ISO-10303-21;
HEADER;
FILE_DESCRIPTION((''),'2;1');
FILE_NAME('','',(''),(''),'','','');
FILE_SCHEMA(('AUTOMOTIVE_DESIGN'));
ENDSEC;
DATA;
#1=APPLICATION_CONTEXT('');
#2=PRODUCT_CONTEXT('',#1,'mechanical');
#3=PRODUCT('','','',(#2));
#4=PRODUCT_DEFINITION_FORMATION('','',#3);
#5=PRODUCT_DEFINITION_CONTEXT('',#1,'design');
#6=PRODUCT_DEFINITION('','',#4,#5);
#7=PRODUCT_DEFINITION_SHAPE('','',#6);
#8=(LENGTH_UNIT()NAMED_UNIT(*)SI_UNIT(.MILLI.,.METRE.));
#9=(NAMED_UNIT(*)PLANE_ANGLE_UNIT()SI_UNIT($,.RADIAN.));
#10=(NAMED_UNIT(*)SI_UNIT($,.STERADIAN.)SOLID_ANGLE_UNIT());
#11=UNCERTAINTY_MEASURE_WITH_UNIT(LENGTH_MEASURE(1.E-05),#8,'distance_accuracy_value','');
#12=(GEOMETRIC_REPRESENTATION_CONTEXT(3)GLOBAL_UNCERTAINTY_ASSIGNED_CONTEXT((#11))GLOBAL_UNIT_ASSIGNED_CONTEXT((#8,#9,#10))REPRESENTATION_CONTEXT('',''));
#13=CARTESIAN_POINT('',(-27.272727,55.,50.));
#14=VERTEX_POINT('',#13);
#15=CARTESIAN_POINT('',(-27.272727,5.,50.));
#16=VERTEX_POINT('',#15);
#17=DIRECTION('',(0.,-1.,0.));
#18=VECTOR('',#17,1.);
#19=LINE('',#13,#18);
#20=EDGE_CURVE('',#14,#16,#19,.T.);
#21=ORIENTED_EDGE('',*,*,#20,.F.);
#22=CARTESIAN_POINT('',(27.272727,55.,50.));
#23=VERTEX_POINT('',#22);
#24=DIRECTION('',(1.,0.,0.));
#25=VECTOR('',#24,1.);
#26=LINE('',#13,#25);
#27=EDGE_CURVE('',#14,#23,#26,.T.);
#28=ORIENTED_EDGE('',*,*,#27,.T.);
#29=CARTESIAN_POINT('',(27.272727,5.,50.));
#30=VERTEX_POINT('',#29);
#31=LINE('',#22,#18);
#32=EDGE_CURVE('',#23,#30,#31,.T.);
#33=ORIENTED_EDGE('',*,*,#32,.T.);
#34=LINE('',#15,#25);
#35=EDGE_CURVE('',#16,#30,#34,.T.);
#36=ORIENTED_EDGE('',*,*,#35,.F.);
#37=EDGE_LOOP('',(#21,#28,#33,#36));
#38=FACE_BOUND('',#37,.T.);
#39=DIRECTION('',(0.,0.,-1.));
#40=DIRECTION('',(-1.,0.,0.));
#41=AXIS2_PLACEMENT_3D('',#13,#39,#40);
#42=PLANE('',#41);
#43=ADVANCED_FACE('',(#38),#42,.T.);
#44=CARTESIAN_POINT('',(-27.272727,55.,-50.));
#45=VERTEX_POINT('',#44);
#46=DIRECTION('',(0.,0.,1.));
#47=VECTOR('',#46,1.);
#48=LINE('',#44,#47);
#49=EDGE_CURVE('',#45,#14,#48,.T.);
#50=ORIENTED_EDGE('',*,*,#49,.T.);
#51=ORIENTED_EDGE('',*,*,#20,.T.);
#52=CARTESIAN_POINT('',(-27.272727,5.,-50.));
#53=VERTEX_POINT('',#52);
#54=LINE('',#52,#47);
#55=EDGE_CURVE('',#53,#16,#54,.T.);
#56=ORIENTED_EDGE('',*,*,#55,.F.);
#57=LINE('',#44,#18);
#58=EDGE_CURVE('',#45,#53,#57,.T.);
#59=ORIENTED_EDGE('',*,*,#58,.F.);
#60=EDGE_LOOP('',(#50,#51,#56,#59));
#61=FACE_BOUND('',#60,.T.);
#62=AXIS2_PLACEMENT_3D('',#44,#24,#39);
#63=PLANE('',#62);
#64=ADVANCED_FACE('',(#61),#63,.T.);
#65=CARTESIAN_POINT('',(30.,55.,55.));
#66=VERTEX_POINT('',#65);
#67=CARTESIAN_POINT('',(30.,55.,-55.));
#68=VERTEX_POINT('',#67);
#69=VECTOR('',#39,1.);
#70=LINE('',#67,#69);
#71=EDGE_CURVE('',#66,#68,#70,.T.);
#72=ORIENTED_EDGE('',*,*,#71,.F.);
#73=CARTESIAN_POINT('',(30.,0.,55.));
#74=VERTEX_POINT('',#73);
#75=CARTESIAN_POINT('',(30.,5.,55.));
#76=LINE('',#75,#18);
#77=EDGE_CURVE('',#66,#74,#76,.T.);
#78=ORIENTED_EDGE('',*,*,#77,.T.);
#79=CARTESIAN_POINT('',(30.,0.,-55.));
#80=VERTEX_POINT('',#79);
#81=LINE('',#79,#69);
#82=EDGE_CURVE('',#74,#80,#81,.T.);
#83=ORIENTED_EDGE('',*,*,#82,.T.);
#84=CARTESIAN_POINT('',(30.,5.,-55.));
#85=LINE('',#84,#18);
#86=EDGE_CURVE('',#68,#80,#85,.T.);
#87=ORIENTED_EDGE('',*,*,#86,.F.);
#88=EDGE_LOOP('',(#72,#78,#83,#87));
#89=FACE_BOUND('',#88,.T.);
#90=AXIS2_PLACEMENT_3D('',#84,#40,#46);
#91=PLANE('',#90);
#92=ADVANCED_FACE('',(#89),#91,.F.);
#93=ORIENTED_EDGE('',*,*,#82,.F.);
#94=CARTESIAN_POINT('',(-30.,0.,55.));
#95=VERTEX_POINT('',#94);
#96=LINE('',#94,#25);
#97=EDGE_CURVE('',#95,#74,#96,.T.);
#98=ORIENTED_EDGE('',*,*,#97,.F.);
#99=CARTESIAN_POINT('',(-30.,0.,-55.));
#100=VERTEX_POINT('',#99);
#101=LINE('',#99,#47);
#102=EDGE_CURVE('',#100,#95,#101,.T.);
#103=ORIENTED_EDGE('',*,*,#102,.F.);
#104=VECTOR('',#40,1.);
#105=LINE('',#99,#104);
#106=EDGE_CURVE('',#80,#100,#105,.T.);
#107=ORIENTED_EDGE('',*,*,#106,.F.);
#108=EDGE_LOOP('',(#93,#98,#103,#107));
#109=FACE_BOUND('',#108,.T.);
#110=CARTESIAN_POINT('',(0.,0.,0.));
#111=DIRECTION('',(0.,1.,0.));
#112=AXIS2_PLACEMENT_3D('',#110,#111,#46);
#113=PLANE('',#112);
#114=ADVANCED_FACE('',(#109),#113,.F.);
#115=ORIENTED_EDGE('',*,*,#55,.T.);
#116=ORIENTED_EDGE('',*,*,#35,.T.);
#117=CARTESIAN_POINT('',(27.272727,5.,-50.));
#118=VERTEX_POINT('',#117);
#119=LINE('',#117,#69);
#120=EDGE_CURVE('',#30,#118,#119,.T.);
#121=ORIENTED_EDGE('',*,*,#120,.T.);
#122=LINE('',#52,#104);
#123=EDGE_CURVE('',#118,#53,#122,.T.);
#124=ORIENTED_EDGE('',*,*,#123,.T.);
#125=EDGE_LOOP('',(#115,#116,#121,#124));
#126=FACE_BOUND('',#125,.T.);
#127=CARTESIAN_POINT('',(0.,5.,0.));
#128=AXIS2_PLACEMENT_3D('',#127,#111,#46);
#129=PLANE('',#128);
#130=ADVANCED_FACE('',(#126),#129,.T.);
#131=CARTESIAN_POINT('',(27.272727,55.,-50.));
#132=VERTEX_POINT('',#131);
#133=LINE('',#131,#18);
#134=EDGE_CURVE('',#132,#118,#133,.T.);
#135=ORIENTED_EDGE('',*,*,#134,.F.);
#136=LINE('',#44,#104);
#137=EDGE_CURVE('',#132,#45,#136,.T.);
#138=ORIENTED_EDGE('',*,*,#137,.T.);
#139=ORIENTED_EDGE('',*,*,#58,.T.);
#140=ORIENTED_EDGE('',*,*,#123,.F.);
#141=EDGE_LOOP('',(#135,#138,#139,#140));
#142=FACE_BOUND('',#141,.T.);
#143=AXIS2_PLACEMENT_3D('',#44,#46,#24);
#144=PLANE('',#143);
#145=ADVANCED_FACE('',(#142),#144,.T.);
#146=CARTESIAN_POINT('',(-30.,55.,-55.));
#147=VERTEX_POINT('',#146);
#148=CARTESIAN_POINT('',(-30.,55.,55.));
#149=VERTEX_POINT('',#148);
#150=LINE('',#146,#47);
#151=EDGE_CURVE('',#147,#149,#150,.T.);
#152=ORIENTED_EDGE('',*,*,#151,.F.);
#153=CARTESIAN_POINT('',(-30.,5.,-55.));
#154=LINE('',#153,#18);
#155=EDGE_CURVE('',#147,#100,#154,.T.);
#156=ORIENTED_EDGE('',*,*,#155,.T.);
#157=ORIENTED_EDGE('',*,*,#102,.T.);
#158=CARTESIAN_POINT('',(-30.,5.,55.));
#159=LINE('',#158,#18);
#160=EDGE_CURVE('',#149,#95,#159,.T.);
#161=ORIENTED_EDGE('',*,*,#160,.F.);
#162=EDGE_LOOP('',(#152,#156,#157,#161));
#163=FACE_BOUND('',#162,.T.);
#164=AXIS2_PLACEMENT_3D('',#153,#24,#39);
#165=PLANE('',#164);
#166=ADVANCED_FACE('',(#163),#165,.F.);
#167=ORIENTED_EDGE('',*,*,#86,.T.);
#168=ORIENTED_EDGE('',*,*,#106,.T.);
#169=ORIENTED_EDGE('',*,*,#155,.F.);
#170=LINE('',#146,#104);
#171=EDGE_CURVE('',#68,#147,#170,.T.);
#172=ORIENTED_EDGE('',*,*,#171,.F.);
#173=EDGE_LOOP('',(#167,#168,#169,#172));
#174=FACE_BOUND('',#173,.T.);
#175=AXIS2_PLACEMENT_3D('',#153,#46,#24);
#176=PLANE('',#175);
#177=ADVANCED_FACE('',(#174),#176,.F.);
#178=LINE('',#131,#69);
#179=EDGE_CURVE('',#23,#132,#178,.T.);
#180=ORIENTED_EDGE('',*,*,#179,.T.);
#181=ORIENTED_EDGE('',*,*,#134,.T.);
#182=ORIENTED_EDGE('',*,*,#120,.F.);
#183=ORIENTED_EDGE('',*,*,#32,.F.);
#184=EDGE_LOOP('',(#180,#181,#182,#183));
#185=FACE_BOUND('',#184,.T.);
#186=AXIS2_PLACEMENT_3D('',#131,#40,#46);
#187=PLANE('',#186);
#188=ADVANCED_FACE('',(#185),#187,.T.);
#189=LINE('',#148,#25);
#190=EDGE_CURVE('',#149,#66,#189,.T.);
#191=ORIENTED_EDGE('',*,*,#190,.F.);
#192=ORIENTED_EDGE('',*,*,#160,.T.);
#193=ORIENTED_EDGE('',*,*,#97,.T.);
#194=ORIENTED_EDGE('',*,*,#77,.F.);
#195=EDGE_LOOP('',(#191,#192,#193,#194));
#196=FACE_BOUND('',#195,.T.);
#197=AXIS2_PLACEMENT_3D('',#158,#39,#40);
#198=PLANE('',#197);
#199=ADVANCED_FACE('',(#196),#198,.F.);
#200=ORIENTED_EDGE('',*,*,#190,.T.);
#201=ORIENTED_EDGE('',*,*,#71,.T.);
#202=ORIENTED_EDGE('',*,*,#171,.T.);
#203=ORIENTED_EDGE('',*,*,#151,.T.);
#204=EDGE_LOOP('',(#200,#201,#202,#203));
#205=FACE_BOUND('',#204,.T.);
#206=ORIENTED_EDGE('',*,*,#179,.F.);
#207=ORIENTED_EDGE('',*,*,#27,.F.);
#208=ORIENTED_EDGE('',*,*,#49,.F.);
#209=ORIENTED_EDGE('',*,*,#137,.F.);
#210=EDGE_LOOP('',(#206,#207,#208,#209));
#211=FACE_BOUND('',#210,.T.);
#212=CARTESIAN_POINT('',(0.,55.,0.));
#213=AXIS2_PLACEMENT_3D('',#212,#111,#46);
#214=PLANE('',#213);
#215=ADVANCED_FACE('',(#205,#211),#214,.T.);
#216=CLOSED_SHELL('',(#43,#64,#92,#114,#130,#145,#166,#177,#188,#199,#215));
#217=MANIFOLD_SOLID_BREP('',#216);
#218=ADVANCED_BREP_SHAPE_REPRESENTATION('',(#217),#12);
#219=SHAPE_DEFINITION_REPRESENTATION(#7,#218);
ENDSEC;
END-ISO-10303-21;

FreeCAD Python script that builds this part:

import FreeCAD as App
import Part
import Sketcher
from FreeCAD import Vector
Q = App.Units.Quantity


def add_polygon(sketch, points):
    """Adds a closed chain of lines whose ends are joined by coincident constraints."""
    first, n = sketch.GeometryCount, len(points)
    for a, b in zip(points, points[1:] + points[:1]):
        sketch.addGeometry(Part.LineSegment(App.Vector(*a, 0), App.Vector(*b, 0)), False)
    for i in range(n):
        sketch.addConstraint(Sketcher.Constraint("Coincident", first + i, 2, first + (i + 1) % n, 1))

doc = App.newDocument("Part")
body = doc.addObject("PartDesign::Body", "Body")

sketch1 = doc.addObject("Sketcher::SketchObject", "Sketch")
body.addObject(sketch1)
sketch1.AttachmentSupport = (doc.XZ_Plane, [""])
sketch1.MapMode = "FlatFace"
add_polygon(sketch1, [(-30, -55), (-30, 55), (30, 55), (30, -55)])
sketch1.addConstraint(Sketcher.Constraint("Vertical", 0))
sketch1.addConstraint(Sketcher.Constraint("Horizontal", 1))
sketch1.addConstraint(Sketcher.Constraint("Vertical", 2))
sketch1.addConstraint(Sketcher.Constraint("Horizontal", 3))
sketch1.addConstraint(Sketcher.Constraint("Symmetric", 0, 2, 2, 2, -1, 1))
sketch1.addConstraint(Sketcher.Constraint("DistanceX", 1, 1, 1, 2, Q("60 mm")))
sketch1.addConstraint(Sketcher.Constraint("DistanceY", 0, 1, 0, 2, Q("110 mm")))
pad1 = doc.addObject("PartDesign::Pad", "Pad")
body.addObject(pad1)
pad1.Profile = sketch1
pad1.Length = 5
pad1.Reversed = True

sketch2 = doc.addObject("Sketcher::SketchObject", "Sketch001")
body.addObject(sketch2)
sketch2.AttachmentSupport = (doc.XZ_Plane, [""])
sketch2.MapMode = "FlatFace"
sketch2.AttachmentOffset = App.Placement(Vector(0, 0, -5), App.Rotation())
add_polygon(sketch2, [(-30, -55), (-30, 55), (30, 55), (30, -55)])
add_polygon(sketch2, [(27, 50), (-27, 50), (-27, -50), (27, -50)])
sketch2.addConstraint(Sketcher.Constraint("Vertical", 0))
sketch2.addConstraint(Sketcher.Constraint("Horizontal", 1))
sketch2.addConstraint(Sketcher.Constraint("Vertical", 2))
sketch2.addConstraint(Sketcher.Constraint("Horizontal", 3))
sketch2.addConstraint(Sketcher.Constraint("Horizontal", 4))
sketch2.addConstraint(Sketcher.Constraint("Vertical", 5))
sketch2.addConstraint(Sketcher.Constraint("Horizontal", 6))
sketch2.addConstraint(Sketcher.Constraint("Vertical", 7))
sketch2.addConstraint(Sketcher.Constraint("Symmetric", 0, 2, 2, 2, -1, 1))
sketch2.addConstraint(Sketcher.Constraint("Symmetric", 4, 2, 6, 2, -1, 1))
sketch2.addConstraint(Sketcher.Constraint("DistanceX", 1, 1, 1, 2, Q("60 mm")))
sketch2.addConstraint(Sketcher.Constraint("DistanceY", 0, 1, 0, 2, Q("110 mm")))
sketch2.addConstraint(Sketcher.Constraint("DistanceY", 5, 2, 5, 1, Q("100 mm")))
sketch2.addConstraint(Sketcher.Constraint("DistanceX", 4, 2, 4, 1, Q("54.545455 mm")))
pad2 = doc.addObject("PartDesign::Pad", "Pad001")
body.addObject(pad2)
pad2.Profile = sketch2
pad2.Length = 50
pad2.Reversed = True

doc.recompute()
